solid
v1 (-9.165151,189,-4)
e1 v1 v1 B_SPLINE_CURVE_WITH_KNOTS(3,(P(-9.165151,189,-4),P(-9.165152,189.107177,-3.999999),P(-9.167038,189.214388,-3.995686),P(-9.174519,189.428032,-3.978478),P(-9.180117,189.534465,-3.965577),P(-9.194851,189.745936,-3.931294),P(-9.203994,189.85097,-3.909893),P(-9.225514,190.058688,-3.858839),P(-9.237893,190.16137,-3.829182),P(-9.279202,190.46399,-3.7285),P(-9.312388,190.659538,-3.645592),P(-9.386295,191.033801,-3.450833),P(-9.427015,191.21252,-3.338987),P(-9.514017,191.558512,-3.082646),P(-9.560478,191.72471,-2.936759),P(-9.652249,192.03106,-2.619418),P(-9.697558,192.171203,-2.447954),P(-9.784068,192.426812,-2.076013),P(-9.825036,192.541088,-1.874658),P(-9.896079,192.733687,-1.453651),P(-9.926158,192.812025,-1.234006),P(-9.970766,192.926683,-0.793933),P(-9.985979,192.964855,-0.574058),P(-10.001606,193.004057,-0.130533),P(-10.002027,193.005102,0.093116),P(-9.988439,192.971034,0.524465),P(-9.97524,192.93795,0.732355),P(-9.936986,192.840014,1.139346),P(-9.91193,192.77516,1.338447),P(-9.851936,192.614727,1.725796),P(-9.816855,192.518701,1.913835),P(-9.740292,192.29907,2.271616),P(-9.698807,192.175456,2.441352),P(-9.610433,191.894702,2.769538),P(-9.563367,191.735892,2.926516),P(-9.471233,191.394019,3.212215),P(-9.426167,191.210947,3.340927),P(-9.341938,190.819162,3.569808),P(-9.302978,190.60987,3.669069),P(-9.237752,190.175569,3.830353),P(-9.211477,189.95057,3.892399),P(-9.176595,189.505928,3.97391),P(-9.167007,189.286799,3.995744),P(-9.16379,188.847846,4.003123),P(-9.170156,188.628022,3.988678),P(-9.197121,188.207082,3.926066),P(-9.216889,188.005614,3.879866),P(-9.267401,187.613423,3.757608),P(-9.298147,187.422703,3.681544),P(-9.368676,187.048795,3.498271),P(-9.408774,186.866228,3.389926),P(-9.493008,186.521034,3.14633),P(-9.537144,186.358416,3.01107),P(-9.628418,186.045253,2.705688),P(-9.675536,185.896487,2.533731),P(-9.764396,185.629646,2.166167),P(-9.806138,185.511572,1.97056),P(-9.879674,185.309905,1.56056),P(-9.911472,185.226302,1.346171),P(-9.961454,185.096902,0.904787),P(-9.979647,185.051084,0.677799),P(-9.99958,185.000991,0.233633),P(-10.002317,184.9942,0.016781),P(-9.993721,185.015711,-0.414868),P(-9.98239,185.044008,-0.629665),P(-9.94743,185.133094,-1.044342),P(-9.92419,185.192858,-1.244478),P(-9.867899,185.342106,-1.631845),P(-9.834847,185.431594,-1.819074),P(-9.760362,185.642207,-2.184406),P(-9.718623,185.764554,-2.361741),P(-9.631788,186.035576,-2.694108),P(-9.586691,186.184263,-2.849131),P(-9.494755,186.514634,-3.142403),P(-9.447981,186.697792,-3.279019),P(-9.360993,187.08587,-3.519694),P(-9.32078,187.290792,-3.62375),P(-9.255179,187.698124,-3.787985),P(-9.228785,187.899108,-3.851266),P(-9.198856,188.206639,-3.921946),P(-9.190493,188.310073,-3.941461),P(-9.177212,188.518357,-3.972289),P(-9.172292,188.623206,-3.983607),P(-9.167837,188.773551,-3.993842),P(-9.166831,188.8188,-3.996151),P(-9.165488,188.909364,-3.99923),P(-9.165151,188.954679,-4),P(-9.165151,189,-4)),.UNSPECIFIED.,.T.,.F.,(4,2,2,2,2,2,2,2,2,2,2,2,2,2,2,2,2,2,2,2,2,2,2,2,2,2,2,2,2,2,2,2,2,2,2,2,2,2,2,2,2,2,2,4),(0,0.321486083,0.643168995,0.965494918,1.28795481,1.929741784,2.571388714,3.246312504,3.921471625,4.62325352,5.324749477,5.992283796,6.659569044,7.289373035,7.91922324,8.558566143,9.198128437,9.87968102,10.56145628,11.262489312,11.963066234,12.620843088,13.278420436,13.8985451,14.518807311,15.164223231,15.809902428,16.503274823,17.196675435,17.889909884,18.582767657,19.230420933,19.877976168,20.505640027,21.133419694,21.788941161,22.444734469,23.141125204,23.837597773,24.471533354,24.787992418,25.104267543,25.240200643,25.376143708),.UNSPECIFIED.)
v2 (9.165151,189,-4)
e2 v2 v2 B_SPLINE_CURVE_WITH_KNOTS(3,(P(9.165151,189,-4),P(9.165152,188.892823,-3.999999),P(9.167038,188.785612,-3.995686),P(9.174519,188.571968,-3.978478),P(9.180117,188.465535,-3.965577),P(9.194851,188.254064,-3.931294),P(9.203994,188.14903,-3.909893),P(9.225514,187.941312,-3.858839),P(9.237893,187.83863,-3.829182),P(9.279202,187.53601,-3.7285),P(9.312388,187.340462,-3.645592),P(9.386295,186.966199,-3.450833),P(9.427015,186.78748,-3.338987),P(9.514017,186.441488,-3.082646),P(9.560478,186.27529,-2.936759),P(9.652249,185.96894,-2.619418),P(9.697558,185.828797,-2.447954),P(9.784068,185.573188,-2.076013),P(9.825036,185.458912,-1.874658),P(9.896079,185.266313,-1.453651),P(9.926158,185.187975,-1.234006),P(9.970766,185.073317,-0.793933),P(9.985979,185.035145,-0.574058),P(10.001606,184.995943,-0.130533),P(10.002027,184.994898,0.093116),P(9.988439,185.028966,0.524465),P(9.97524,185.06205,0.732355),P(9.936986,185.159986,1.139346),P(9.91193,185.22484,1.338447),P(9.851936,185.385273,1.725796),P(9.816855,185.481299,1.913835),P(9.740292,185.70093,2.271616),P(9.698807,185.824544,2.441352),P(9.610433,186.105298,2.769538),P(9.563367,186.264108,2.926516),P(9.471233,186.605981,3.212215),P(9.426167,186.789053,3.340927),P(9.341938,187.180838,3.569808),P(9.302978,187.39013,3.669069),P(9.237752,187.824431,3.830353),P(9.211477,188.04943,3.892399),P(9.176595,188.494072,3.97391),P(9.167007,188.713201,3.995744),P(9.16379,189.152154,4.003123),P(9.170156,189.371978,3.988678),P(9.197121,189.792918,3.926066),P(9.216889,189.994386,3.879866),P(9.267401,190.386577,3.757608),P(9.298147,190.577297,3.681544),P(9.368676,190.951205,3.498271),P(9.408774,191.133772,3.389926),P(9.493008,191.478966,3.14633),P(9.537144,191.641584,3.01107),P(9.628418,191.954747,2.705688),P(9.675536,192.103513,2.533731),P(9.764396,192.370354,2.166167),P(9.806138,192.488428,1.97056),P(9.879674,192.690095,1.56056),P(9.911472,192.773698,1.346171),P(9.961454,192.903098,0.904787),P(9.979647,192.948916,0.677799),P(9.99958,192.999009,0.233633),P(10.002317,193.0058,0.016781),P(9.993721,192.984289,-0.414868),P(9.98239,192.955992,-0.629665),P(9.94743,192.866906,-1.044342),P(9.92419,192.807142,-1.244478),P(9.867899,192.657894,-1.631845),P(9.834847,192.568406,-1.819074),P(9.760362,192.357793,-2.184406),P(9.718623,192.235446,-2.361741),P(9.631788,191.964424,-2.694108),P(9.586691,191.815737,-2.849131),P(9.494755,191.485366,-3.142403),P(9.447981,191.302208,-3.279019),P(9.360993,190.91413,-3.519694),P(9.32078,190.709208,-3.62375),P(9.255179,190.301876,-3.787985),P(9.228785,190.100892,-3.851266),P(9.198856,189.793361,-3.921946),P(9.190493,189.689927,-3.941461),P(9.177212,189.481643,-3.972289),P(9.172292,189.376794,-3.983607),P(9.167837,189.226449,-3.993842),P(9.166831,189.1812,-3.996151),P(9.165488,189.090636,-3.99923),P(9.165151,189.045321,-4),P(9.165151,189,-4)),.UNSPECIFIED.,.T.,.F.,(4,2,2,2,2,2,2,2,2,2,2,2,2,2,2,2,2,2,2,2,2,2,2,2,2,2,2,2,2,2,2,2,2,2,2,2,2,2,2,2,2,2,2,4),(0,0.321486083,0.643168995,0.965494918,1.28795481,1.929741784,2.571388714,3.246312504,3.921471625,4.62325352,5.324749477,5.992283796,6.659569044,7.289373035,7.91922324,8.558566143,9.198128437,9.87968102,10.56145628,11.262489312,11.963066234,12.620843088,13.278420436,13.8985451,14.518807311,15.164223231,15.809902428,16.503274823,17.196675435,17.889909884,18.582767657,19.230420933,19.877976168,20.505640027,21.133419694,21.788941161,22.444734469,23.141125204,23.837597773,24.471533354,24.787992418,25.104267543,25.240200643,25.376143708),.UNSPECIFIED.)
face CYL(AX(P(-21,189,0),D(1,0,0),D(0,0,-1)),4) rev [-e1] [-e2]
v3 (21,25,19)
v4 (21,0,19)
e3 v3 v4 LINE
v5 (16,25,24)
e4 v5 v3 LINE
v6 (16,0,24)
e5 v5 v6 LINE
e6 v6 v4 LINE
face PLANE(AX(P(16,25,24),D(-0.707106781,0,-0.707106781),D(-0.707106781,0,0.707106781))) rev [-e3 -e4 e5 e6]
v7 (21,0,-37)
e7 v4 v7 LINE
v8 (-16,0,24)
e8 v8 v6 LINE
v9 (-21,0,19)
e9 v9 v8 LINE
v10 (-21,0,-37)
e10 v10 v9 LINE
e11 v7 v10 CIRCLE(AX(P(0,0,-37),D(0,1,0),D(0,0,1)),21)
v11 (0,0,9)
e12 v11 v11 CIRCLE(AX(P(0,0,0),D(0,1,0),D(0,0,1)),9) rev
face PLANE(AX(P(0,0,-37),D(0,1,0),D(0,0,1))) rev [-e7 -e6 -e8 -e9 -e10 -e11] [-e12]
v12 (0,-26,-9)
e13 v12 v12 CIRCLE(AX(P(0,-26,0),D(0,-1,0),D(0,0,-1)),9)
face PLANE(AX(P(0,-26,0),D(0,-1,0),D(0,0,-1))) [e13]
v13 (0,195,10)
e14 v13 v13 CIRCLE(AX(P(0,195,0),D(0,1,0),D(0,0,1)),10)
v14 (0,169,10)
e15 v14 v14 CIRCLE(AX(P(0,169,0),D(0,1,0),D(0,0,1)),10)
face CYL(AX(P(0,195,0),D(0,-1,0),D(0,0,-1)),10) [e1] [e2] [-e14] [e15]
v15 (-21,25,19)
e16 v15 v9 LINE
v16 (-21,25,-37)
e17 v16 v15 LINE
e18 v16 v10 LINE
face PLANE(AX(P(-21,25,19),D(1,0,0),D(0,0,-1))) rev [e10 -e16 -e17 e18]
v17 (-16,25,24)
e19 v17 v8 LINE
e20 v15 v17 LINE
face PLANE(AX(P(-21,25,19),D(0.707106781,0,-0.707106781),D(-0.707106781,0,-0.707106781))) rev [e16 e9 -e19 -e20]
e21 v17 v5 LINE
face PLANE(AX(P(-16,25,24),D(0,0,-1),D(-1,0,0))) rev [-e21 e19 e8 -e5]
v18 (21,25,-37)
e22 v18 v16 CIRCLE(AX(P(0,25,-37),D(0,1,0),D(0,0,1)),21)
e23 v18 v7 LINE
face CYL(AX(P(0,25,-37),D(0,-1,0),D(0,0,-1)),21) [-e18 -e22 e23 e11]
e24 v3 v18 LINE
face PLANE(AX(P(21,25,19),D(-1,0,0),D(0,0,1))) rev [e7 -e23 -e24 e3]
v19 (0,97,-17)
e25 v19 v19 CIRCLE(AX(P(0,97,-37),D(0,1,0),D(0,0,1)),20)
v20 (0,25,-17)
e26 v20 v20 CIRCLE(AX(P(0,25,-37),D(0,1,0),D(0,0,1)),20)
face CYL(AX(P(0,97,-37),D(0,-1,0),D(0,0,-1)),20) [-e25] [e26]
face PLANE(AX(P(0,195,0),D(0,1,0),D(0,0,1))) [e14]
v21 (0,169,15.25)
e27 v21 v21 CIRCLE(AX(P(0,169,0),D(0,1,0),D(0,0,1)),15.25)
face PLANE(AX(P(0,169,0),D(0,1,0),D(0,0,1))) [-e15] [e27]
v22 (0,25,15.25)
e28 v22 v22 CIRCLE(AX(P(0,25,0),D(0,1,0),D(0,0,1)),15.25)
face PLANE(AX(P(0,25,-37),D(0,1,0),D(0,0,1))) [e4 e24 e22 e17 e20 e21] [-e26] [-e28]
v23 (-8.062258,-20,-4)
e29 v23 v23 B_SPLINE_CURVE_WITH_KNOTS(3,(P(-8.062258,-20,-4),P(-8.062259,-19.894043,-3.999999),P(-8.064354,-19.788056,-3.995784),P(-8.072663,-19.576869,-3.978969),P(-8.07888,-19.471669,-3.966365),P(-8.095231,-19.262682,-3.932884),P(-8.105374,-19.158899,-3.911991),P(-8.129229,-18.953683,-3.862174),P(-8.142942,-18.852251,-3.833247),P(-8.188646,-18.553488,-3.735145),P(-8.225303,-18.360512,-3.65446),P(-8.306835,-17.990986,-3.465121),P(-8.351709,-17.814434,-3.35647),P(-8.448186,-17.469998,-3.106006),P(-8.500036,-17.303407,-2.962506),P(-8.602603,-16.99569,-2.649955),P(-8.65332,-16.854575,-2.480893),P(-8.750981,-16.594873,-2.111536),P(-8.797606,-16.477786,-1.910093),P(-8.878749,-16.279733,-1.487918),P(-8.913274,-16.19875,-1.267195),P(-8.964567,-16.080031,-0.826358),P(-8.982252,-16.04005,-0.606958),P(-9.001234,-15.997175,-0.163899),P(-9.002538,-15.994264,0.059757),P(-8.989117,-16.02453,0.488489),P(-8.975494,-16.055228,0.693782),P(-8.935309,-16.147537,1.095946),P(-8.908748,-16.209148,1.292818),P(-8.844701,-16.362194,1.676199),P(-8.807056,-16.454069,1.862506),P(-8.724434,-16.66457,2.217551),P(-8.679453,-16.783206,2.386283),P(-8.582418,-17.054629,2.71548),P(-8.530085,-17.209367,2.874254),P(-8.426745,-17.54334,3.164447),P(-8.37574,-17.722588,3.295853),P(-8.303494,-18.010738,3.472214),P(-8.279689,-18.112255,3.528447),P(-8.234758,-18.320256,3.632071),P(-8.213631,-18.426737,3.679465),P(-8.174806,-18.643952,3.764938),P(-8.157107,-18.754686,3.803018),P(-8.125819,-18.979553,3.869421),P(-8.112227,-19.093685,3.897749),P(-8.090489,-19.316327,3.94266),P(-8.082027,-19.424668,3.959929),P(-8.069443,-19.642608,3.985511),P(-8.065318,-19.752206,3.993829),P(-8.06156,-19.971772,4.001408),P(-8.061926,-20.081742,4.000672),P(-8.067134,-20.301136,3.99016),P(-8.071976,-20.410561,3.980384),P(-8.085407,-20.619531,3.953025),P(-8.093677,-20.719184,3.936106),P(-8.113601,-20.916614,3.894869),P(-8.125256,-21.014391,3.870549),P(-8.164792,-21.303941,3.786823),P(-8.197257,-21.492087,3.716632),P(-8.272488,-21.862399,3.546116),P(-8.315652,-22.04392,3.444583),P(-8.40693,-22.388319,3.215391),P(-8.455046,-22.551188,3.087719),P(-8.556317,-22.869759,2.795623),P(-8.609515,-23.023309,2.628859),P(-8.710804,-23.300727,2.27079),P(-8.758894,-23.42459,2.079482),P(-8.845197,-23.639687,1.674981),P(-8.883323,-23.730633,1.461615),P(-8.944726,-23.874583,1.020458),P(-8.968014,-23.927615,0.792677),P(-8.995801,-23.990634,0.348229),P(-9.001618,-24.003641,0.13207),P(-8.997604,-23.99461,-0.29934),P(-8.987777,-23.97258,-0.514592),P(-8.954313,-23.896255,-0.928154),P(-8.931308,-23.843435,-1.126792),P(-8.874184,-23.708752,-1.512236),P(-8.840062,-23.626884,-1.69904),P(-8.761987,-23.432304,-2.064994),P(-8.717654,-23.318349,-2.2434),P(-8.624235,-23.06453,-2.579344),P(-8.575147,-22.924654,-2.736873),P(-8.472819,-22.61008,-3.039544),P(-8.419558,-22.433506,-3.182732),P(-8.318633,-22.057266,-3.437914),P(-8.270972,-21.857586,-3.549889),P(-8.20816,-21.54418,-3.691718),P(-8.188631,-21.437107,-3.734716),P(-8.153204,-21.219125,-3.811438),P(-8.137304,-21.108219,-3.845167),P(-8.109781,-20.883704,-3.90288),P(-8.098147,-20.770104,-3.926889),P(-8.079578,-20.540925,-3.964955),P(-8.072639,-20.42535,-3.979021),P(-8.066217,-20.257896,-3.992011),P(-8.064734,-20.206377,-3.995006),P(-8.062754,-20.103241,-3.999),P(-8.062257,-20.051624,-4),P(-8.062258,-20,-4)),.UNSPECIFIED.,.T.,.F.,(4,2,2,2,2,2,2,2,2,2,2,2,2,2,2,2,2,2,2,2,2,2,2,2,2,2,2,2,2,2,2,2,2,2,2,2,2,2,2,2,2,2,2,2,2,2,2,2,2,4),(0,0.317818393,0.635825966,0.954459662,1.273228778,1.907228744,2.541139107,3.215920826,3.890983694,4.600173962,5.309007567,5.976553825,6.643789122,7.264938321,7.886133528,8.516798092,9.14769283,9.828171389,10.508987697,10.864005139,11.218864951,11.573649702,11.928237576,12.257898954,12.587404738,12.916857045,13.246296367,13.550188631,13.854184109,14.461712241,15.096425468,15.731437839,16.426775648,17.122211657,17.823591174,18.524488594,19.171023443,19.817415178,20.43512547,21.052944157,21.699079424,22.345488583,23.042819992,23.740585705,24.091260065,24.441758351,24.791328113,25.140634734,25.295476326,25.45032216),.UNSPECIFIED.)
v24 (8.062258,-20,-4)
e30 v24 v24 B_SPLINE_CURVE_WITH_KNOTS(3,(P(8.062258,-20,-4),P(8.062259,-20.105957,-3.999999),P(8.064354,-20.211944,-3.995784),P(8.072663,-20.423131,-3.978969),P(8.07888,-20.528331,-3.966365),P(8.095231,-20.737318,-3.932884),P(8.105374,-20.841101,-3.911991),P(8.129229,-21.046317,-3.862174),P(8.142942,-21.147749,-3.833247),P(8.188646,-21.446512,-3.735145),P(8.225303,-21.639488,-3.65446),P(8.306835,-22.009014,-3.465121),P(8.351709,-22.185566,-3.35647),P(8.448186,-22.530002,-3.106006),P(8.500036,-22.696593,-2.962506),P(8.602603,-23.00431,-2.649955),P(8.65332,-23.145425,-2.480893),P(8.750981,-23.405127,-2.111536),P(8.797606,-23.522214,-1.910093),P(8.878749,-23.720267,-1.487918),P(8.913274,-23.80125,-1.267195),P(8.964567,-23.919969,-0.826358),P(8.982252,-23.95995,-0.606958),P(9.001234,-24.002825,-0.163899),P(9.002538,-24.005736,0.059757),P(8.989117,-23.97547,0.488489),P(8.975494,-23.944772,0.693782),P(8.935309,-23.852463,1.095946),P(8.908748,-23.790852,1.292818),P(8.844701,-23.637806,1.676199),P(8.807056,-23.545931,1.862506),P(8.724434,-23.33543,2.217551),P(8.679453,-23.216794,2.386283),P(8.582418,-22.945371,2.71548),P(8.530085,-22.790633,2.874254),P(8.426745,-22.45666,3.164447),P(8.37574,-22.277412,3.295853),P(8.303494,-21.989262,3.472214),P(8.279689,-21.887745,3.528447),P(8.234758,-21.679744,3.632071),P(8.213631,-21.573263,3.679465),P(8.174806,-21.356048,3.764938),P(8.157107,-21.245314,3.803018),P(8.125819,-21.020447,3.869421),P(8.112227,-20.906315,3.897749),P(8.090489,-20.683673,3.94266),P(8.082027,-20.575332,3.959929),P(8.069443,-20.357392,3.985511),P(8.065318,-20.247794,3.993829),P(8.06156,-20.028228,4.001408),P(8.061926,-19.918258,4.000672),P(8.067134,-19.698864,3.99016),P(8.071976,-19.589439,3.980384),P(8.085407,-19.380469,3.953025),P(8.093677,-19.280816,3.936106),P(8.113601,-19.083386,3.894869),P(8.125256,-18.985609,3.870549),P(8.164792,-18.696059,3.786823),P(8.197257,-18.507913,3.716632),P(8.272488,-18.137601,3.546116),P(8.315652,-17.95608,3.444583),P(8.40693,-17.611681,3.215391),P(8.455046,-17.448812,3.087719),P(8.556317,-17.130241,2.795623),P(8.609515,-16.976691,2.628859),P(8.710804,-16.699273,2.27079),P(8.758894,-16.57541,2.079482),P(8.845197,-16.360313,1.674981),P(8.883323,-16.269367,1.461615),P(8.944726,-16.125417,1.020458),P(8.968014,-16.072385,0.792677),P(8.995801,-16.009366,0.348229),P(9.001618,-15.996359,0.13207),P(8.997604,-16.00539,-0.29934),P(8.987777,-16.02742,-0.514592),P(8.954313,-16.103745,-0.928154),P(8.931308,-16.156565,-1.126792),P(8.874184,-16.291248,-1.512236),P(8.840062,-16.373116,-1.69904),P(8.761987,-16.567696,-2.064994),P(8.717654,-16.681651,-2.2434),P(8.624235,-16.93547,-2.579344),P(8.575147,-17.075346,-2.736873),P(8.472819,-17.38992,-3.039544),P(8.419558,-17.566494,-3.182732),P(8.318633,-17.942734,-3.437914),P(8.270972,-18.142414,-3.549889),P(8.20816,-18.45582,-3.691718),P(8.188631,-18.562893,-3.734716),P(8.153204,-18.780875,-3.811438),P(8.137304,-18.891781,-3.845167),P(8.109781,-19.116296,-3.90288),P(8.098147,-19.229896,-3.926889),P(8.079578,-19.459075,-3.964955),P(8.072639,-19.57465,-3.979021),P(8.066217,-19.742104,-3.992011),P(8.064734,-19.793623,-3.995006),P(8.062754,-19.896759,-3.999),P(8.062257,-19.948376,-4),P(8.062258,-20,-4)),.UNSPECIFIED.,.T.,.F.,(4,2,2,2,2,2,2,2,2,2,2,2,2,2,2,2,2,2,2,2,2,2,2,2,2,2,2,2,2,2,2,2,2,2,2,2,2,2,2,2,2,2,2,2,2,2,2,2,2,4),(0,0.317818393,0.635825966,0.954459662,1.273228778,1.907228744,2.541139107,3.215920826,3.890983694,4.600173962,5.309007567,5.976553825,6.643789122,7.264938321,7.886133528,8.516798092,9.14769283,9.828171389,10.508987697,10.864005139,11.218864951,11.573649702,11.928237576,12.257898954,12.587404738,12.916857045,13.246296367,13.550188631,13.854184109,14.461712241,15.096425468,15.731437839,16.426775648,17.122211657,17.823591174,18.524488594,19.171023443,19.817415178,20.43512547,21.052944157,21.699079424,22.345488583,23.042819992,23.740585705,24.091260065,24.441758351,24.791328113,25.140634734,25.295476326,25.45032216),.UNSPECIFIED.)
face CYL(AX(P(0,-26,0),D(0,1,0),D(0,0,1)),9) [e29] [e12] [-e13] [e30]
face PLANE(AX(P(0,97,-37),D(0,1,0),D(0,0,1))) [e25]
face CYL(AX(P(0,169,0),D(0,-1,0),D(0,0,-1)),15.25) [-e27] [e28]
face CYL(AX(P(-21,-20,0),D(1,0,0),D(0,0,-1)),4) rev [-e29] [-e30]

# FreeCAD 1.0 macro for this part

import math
import FreeCAD as App
import Part
import Sketcher

doc = App.newDocument("Part")
params = doc.addObject("Spreadsheet::Sheet", "Params")
for row, (alias, value) in enumerate([
    ("sketch1_radius", "21 mm"),
    ("sketch1_width", "32 mm"),
    ("sketch1_height", "56 mm"),
    ("pad1_length", "25 mm"),
    ("sketch2_diameter", "30.5 mm"),
    ("pad2_length", "144 mm"),
    ("sketch3_diameter", "40 mm"),
    ("pad3_length", "72 mm"),
    ("sketch4_diameter", "18 mm"),
    ("pad4_length", "26 mm"),
    ("sketch5_diameter", "8 mm"),
    ("sketch6_diameter", "20 mm"),
    ("pad5_length", "26 mm"),
    ("sketch7_diameter", "8 mm"),
], start=1):
    params.set(f"A{row}", alias)
    params.set(f"B{row}", "=" + value)
    params.setAlias(f"B{row}", alias)

body = doc.addObject("PartDesign::Body", "Body")

sketch1 = body.newObject("Sketcher::SketchObject", "Sketch")
sketch1.AttachmentSupport = (doc.getObject("XZ_Plane"), [""])
sketch1.MapMode = "FlatFace"
sketch1.addGeometry([
    Part.LineSegment(App.Vector(-16, 24, 0), App.Vector(16, 24, 0)),
    Part.LineSegment(App.Vector(16, 24, 0), App.Vector(21, 19, 0)),
    Part.LineSegment(App.Vector(21, 19, 0), App.Vector(21, -37, 0)),
    Part.ArcOfCircle(Part.Circle(App.Vector(0, -37, 0), App.Vector(0, 0, 1), 21), math.radians(180), math.radians(360)),
    Part.LineSegment(App.Vector(-21, -37, 0), App.Vector(-21, 19, 0)),
    Part.LineSegment(App.Vector(-21, 19, 0), App.Vector(-16, 24, 0)),
], False)
sketch1.addConstraint([
    Sketcher.Constraint("Coincident", 0, 2, 1, 1),
    Sketcher.Constraint("Coincident", 1, 2, 2, 1),
    Sketcher.Constraint("Tangent", 2, 2, 3, 2),
    Sketcher.Constraint("Tangent", 3, 1, 4, 1),
    Sketcher.Constraint("Coincident", 4, 2, 5, 1),
    Sketcher.Constraint("Coincident", 5, 2, 0, 1),
    Sketcher.Constraint("Horizontal", 0),
    Sketcher.Constraint("Vertical", 2),
    Sketcher.Constraint("Vertical", 4),
    Sketcher.Constraint("Symmetric", 1, 2, 4, 2, -2),
    Sketcher.Constraint("Perpendicular", 1, 5),
    Sketcher.Constraint("Equal", 1, 5),
    Sketcher.Constraint("Radius", 3, 21.0),
    Sketcher.Constraint("DistanceX", 0, 1, 0, 2, 32.0),
    Sketcher.Constraint("DistanceY", 2, 2, 2, 1, 56.0),
    Sketcher.Constraint("DistanceY", 3, 3, -1, 1, 37.0),
])
sketch1.setExpression("Constraints[12]", "Params.sketch1_radius")
sketch1.setExpression("Constraints[13]", "Params.sketch1_width")
sketch1.setExpression("Constraints[14]", "Params.sketch1_height")
pad1 = body.newObject("PartDesign::Pad", "Pad")
pad1.Profile = sketch1
pad1.setExpression("Length", "Params.pad1_length")
pad1.Reversed = True

sketch2 = body.newObject("Sketcher::SketchObject", "Sketch001")
sketch2.AttachmentSupport = (doc.getObject("XZ_Plane"), [""])
sketch2.MapMode = "FlatFace"
sketch2.AttachmentOffset = App.Placement(App.Vector(0, 0, -25), App.Rotation())
sketch2.addGeometry(Part.Circle(App.Vector(0, 0, 0), App.Vector(0, 0, 1), 15), False)
sketch2.addConstraint([
    Sketcher.Constraint("Coincident", 0, 3, -1, 1),
    Sketcher.Constraint("Diameter", 0, 30.5),
])
sketch2.setExpression("Constraints[1]", "Params.sketch2_diameter")
pad2 = body.newObject("PartDesign::Pad", "Pad001")
pad2.Profile = sketch2
pad2.setExpression("Length", "Params.pad2_length")
pad2.Reversed = True

sketch3 = body.newObject("Sketcher::SketchObject", "Sketch002")
sketch3.AttachmentSupport = (doc.getObject("XZ_Plane"), [""])
sketch3.MapMode = "FlatFace"
sketch3.AttachmentOffset = App.Placement(App.Vector(0, 0, -25), App.Rotation())
sketch3.addGeometry(Part.Circle(App.Vector(0, -37, 0), App.Vector(0, 0, 1), 20), False)
sketch3.addConstraint([
    Sketcher.Constraint("PointOnObject", 0, 3, -2),
    Sketcher.Constraint("Diameter", 0, 40.0),
    Sketcher.Constraint("DistanceY", 0, 3, -1, 1, 37.0),
])
sketch3.setExpression("Constraints[1]", "Params.sketch3_diameter")
pad3 = body.newObject("PartDesign::Pad", "Pad002")
pad3.Profile = sketch3
pad3.setExpression("Length", "Params.pad3_length")
pad3.Reversed = True

sketch4 = body.newObject("Sketcher::SketchObject", "Sketch003")
sketch4.AttachmentSupport = (doc.getObject("XZ_Plane"), [""])
sketch4.MapMode = "FlatFace"
sketch4.addGeometry(Part.Circle(App.Vector(0, 0, 0), App.Vector(0, 0, 1), 9), False)
sketch4.addConstraint([
    Sketcher.Constraint("Coincident", 0, 3, -1, 1),
    Sketcher.Constraint("Diameter", 0, 18.0),
])
sketch4.setExpression("Constraints[1]", "Params.sketch4_diameter")
pad4 = body.newObject("PartDesign::Pad", "Pad003")
pad4.Profile = sketch4
pad4.setExpression("Length", "Params.pad4_length")

sketch5 = body.newObject("Sketcher::SketchObject", "Sketch004")
sketch5.AttachmentSupport = (doc.getObject("YZ_Plane"), [""])
sketch5.MapMode = "FlatFace"
sketch5.addGeometry(Part.Circle(App.Vector(-20, 0, 0), App.Vector(0, 0, 1), 4), False)
sketch5.addConstraint([
    Sketcher.Constraint("PointOnObject", 0, 3, -1),
    Sketcher.Constraint("Diameter", 0, 8.0),
    Sketcher.Constraint("DistanceX", 0, 3, -1, 1, 20.0),
])
sketch5.setExpression("Constraints[1]", "Params.sketch5_diameter")
pocket1 = body.newObject("PartDesign::Pocket", "Pocket")
pocket1.Profile = sketch5
pocket1.Type = "ThroughAll"
pocket1.Midplane = True

sketch6 = body.newObject("Sketcher::SketchObject", "Sketch005")
sketch6.AttachmentSupport = (doc.getObject("XZ_Plane"), [""])
sketch6.MapMode = "FlatFace"
sketch6.AttachmentOffset = App.Placement(App.Vector(0, 0, -169), App.Rotation())
sketch6.addGeometry(Part.Circle(App.Vector(0, 0, 0), App.Vector(0, 0, 1), 10), False)
sketch6.addConstraint([
    Sketcher.Constraint("Coincident", 0, 3, -1, 1),
    Sketcher.Constraint("Diameter", 0, 20.0),
])
sketch6.setExpression("Constraints[1]", "Params.sketch6_diameter")
pad5 = body.newObject("PartDesign::Pad", "Pad004")
pad5.Profile = sketch6
pad5.setExpression("Length", "Params.pad5_length")
pad5.Reversed = True

sketch7 = body.newObject("Sketcher::SketchObject", "Sketch006")
sketch7.AttachmentSupport = (doc.getObject("YZ_Plane"), [""])
sketch7.MapMode = "FlatFace"
sketch7.addGeometry(Part.Circle(App.Vector(189, 0, 0), App.Vector(0, 0, 1), 4), False)
sketch7.addConstraint([
    Sketcher.Constraint("PointOnObject", 0, 3, -1),
    Sketcher.Constraint("Diameter", 0, 8.0),
    Sketcher.Constraint("DistanceX", -1, 1, 0, 3, 189.0),
])
sketch7.setExpression("Constraints[1]", "Params.sketch7_diameter")
pocket2 = body.newObject("PartDesign::Pocket", "Pocket001")
pocket2.Profile = sketch7
pocket2.Type = "ThroughAll"
pocket2.Midplane = True

doc.recompute()
